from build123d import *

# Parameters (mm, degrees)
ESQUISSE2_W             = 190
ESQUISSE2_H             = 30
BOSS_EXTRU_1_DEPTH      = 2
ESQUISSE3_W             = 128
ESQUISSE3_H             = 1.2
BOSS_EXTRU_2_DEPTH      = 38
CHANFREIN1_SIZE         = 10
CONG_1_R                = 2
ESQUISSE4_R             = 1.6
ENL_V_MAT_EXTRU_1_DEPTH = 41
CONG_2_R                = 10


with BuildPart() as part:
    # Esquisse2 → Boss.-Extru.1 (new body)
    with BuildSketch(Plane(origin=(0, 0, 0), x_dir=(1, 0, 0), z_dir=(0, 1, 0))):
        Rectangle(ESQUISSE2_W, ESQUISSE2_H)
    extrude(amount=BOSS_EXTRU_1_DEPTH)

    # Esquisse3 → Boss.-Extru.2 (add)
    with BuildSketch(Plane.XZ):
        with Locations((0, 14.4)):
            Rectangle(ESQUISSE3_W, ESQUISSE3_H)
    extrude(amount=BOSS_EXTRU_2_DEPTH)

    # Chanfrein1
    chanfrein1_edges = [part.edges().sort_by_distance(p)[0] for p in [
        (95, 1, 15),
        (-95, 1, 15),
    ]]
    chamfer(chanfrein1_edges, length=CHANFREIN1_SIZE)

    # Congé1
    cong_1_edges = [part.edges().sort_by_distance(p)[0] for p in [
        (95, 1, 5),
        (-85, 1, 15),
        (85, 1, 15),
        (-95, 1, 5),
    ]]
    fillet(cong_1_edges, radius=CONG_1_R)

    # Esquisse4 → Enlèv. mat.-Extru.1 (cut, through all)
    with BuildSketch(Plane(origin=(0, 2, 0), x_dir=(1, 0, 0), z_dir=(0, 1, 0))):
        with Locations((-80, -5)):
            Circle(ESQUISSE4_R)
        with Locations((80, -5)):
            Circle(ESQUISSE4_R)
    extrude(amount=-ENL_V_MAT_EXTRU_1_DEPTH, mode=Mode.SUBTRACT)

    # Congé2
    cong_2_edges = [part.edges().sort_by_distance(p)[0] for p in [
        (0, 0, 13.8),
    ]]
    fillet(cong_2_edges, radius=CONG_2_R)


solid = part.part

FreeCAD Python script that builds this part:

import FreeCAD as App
import Part
import Sketcher

V = App.Vector


def edges_at(feature, points):
    """Names of the edges that pass closest to the given points."""
    edges = feature.Shape.Edges
    near = lambda p: min(range(len(edges)), key=lambda i: edges[i].distToShape(Part.Vertex(*p))[0])
    return sorted({f"Edge{near(p) + 1}" for p in points})


def add_polygon(sketch, points):
    """Adds a closed chain of lines whose ends are joined by coincident constraints."""
    first, n = sketch.GeometryCount, len(points)
    for a, b in zip(points, points[1:] + points[:1]):
        sketch.addGeometry(Part.LineSegment(App.Vector(*a, 0), App.Vector(*b, 0)), False)
    for i in range(n):
        sketch.addConstraint(Sketcher.Constraint("Coincident", first + i, 2, first + (i + 1) % n, 1))

doc = App.newDocument("Part")
params = doc.addObject("Spreadsheet::Sheet", "Params")
for row, (alias, value) in enumerate([
    ("sketch1_width", "190 mm"),
    ("sketch1_height", "30 mm"),
    ("pad1_length", "2 mm"),
    ("sketch2_width", "128 mm"),
    ("sketch2_height", "1.2 mm"),
    ("pad2_length", "38 mm"),
    ("chamfer_size", "10 mm"),
    ("fillet_radius", "2 mm"),
    ("sketch3_diameter", "3.2 mm"),
    ("fillet2_radius", "10 mm"),
], start=1):
    params.set(f"A{row}", alias)
    params.set(f"B{row}", "=" + value)
    params.setAlias(f"B{row}", alias)

body = doc.addObject("PartDesign::Body", "Body")

# Sketch on XZ plane
sketch1 = body.newObject("Sketcher::SketchObject", "Sketch")
sketch1.AttachmentSupport = (doc.getObject("XZ_Plane"), [""])
sketch1.MapMode = "FlatFace"
add_polygon(sketch1, [(-95, -15), (-95, 15), (95, 15), (95, -15)])  # lines 0-3
sketch1.addConstraint(Sketcher.Constraint("Vertical", 0))
sketch1.addConstraint(Sketcher.Constraint("Horizontal", 1))
sketch1.addConstraint(Sketcher.Constraint("Vertical", 2))
sketch1.addConstraint(Sketcher.Constraint("Horizontal", 3))
sketch1.addConstraint(Sketcher.Constraint("Symmetric", 0, 2, 2, 2, -1, 1))
sketch1.addConstraint(Sketcher.Constraint("DistanceX", 1, 1, 1, 2, 190.0))
sketch1.addConstraint(Sketcher.Constraint("DistanceY", 0, 1, 0, 2, 30.0))
sketch1.setExpression("Constraints[9]", "Params.sketch1_width")
sketch1.setExpression("Constraints[10]", "Params.sketch1_height")
pad1 = body.newObject("PartDesign::Pad", "Pad")
pad1.Profile = sketch1
pad1.setExpression("Length", "Params.pad1_length")
pad1.Reversed = True

# Sketch on XZ plane
sketch2 = body.newObject("Sketcher::SketchObject", "Sketch001")
sketch2.AttachmentSupport = (doc.getObject("XZ_Plane"), [""])
sketch2.MapMode = "FlatFace"
add_polygon(sketch2, [(-64, 15), (-64, 13.8), (64, 13.8), (64, 15)])  # lines 0-3
sketch2.addConstraint(Sketcher.Constraint("Vertical", 0))
sketch2.addConstraint(Sketcher.Constraint("Horizontal", 1))
sketch2.addConstraint(Sketcher.Constraint("Vertical", 2))
sketch2.addConstraint(Sketcher.Constraint("Horizontal", 3))
sketch2.addConstraint(Sketcher.Constraint("DistanceX", 1, 1, 1, 2, 128.0))
sketch2.addConstraint(Sketcher.Constraint("DistanceY", 0, 2, 0, 1, 1.2))
sketch2.addConstraint(Sketcher.Constraint("DistanceX", 0, 2, -1, 1, 64.0))
sketch2.addConstraint(Sketcher.Constraint("DistanceY", -1, 1, 2, 2, 15.0))
sketch2.setExpression("Constraints[8]", "Params.sketch2_width")
sketch2.setExpression("Constraints[9]", "Params.sketch2_height")
pad2 = body.newObject("PartDesign::Pad", "Pad001")
pad2.Profile = sketch2
pad2.setExpression("Length", "Params.pad2_length")
doc.recompute()

chamfer = body.newObject("PartDesign::Chamfer", "Chamfer")
chamfer.Base = (pad2, edges_at(pad2, [(95, 1, 15), (-95, 1, 15)]))
chamfer.setExpression("Size", "Params.chamfer_size")
doc.recompute()

fillet = body.newObject("PartDesign::Fillet", "Fillet")
fillet.Base = (chamfer, edges_at(chamfer, [
    (95, 1, 5),
    (-85, 1, 15),
    (85, 1, 15),
    (-95, 1, 5),
]))
fillet.setExpression("Radius", "Params.fillet_radius")

# Sketch on XZ plane
sketch3 = body.newObject("Sketcher::SketchObject", "Sketch002")
sketch3.AttachmentSupport = (doc.getObject("XZ_Plane"), [""])
sketch3.MapMode = "FlatFace"
sketch3.AttachmentOffset = App.Placement(V(0, 0, -2), App.Rotation())
sketch3.addGeometry(Part.Circle(V(-80, 5, 0), V(0, 0, 1), 1.6), False)
sketch3.addGeometry(Part.Circle(V(80, 5, 0), V(0, 0, 1), 1.6), False)
sketch3.addConstraint(Sketcher.Constraint("Equal", 0, 1))
sketch3.addConstraint(Sketcher.Constraint("Symmetric", 0, 3, 1, 3, -2))
sketch3.addConstraint(Sketcher.Constraint("Diameter", 0, 3.2))
sketch3.addConstraint(Sketcher.Constraint("DistanceX", 0, 3, -1, 1, 80.0))
sketch3.addConstraint(Sketcher.Constraint("DistanceY", -1, 1, 0, 3, 5.0))
sketch3.setExpression("Constraints[2]", "Params.sketch3_diameter")
pocket1 = body.newObject("PartDesign::Pocket", "Pocket")
pocket1.Profile = sketch3
pocket1.Type = "ThroughAll"
pocket1.Reversed = True
doc.recompute()

fillet2 = body.newObject("PartDesign::Fillet", "Fillet001")
fillet2.Base = (pocket1, edges_at(pocket1, [(0, 0, 13.8)]))
fillet2.setExpression("Radius", "Params.fillet2_radius")

doc.recompute()
